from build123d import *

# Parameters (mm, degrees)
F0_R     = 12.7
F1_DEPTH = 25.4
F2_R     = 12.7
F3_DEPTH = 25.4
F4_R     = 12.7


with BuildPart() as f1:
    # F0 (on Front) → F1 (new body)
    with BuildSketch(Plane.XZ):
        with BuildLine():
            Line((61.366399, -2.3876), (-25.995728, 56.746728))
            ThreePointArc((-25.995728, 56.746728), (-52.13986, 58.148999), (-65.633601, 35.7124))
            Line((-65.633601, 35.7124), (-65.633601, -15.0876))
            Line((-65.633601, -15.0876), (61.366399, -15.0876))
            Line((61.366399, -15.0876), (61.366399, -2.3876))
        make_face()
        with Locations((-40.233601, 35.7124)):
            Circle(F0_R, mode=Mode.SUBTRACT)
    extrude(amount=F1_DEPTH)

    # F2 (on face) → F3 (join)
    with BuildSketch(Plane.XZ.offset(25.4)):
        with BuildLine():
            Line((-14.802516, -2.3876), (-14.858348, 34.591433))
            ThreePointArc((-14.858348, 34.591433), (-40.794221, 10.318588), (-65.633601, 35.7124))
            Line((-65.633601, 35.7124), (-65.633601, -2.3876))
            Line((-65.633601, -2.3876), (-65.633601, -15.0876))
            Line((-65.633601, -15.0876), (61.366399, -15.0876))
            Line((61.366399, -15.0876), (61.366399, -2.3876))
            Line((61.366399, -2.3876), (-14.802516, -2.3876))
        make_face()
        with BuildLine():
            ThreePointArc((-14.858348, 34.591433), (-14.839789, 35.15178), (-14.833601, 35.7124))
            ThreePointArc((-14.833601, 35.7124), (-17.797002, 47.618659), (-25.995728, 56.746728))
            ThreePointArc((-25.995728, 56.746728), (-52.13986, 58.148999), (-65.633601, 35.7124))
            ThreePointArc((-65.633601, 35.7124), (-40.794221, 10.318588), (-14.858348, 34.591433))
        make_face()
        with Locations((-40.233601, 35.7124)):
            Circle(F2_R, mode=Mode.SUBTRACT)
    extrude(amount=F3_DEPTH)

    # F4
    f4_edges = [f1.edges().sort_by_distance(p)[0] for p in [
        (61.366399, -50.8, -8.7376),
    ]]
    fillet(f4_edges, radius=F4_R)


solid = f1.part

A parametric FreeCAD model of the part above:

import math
import FreeCAD as App
import Part
import Sketcher

V = App.Vector
Q = App.Units.Quantity


def edges_at(feature, points):
    """Names of the edges that pass closest to the given points."""
    edges = feature.Shape.Edges
    near = lambda p: min(range(len(edges)), key=lambda i: edges[i].distToShape(Part.Vertex(*p))[0])
    return sorted({f"Edge{near(p) + 1}" for p in points})

doc = App.newDocument("Part")
body = doc.addObject("PartDesign::Body", "Body")

sketch1 = doc.addObject("Sketcher::SketchObject", "Sketch")
body.addObject(sketch1)
sketch1.AttachmentSupport = (doc.XZ_Plane, [""])
sketch1.MapMode = "FlatFace"
sketch1.addGeometry([
    Part.LineSegment(V(61, -2, 0), V(-26, 57, 0)),
    Part.ArcOfCircle(Part.Circle(V(-40, 36, 0), V(0, 0, 1), 25), math.radians(56), math.radians(180)),
    Part.LineSegment(V(-66, 36, 0), V(-66, -15, 0)),
    Part.LineSegment(V(-66, -15, 0), V(61, -15, 0)),
    Part.LineSegment(V(61, -15, 0), V(61, -2, 0)),
    Part.Circle(V(-40, 36, 0), V(0, 0, 1), 13),
], False)
sketch1.addConstraint([
    Sketcher.Constraint("Tangent", 0, 2, 1, 1),
    Sketcher.Constraint("Tangent", 1, 2, 2, 1),
    Sketcher.Constraint("Coincident", 2, 2, 3, 1),
    Sketcher.Constraint("Coincident", 3, 2, 4, 1),
    Sketcher.Constraint("Coincident", 4, 2, 0, 1),
    Sketcher.Constraint("Vertical", 2),
    Sketcher.Constraint("Horizontal", 3),
    Sketcher.Constraint("Vertical", 4),
    Sketcher.Constraint("Coincident", 5, 3, 1, 3),
    Sketcher.Constraint("Diameter", 5, Q("1 in")),
    Sketcher.Constraint("Radius", 1, Q("1 in")),
    Sketcher.Constraint("DistanceX", 3, 1, 3, 2, Q("5 in")),
    Sketcher.Constraint("DistanceY", 2, 2, 2, 1, Q("2 in")),
    Sketcher.Constraint("DistanceY", 4, 1, 4, 2, Q("0.5 in")),
    Sketcher.Constraint("DistanceX", 1, 3, -1, 1, Q("1.584 in")),
    Sketcher.Constraint("DistanceY", -1, 1, 1, 3, Q("1.406 in")),
])
pad1 = doc.addObject("PartDesign::Pad", "Pad")
body.addObject(pad1)
pad1.Profile = sketch1
pad1.Length = Q("1 in")

sketch2 = doc.addObject("Sketcher::SketchObject", "Sketch001")
body.addObject(sketch2)
sketch2.AttachmentSupport = (doc.XZ_Plane, [""])
sketch2.MapMode = "FlatFace"
sketch2.AttachmentOffset = App.Placement(V(0, 0, 1 * 25.4), App.Rotation())
sketch2.addGeometry([
    Part.LineSegment(V(-14.802516, -2.3876, 0), V(-14.858348, 34.591433, 0)),
    Part.ArcOfCircle(Part.Circle(V(-40.236287, 35.712445, 0), V(0, 0, 1), 25.402686), math.radians(-2.529265), math.radians(-0.000102)),
    Part.ArcOfCircle(Part.Circle(V(-40.233603, 35.712399, 0), V(0, 0, 1), 25.400002), math.radians(0.000003), math.radians(55.90642)),
    Part.ArcOfCircle(Part.Circle(V(-40.233601, 35.712399, 0), V(0, 0, 1), 25.4), math.radians(55.906422), math.radians(179.999999)),
    Part.LineSegment(V(-65.633601, 35.7124, 0), V(-65.633601, -15.0876, 0)),
    Part.LineSegment(V(-65.633601, -15.0876, 0), V(61.366399, -15.0876, 0)),
    Part.LineSegment(V(61.366399, -15.0876, 0), V(61.366399, -2.3876, 0)),
    Part.LineSegment(V(61.366399, -2.3876, 0), V(-14.802516, -2.3876, 0)),
    Part.Circle(V(-40.233601, 35.7124, 0), V(0, 0, 1), 12.7),
], False)
sketch2.addConstraint([
    Sketcher.Constraint("Coincident", 0, 2, 1, 1),
    Sketcher.Constraint("Coincident", 1, 2, 2, 1),
    Sketcher.Constraint("Coincident", 2, 2, 3, 1),
    Sketcher.Constraint("Coincident", 3, 2, 4, 1),
    Sketcher.Constraint("Coincident", 4, 2, 5, 1),
    Sketcher.Constraint("Coincident", 5, 2, 6, 1),
    Sketcher.Constraint("Coincident", 6, 2, 7, 1),
    Sketcher.Constraint("Coincident", 7, 2, 0, 1),
    Sketcher.Constraint("Vertical", 4),
    Sketcher.Constraint("Horizontal", 5),
    Sketcher.Constraint("Vertical", 6),
    Sketcher.Constraint("Horizontal", 7),
    Sketcher.Constraint("Coincident", 3, 3, 2, 3),
    Sketcher.Constraint("Coincident", 8, 3, 2, 3),
    Sketcher.Constraint("Diameter", 8, Q("1 in")),
    Sketcher.Constraint("Radius", 2, Q("1.0000001 in")),
    Sketcher.Constraint("DistanceX", 5, 1, 5, 2, Q("5 in")),
    Sketcher.Constraint("DistanceY", 4, 2, 4, 1, Q("2 in")),
    Sketcher.Constraint("DistanceY", 6, 1, 6, 2, Q("0.5 in")),
    Sketcher.Constraint("DistanceY", 4, 2, 2, 3, Q("1.9999999 in")),
    Sketcher.Constraint("DistanceY", 5, 2, 1, 2, Q("2 in")),
    Sketcher.Constraint("DistanceX", 2, 3, -1, 1, Q("1.5840001 in")),
    Sketcher.Constraint("DistanceY", -1, 1, 2, 3, Q("1.4059999 in")),
    Sketcher.Constraint("Radius", 1, 25.402686),
    Sketcher.Constraint("DistanceX", 7, 2, 7, 1, 76.168915),
    Sketcher.Constraint("DistanceX", 2, 2, -1, 1, 25.995728),
    Sketcher.Constraint("DistanceX", 1, 3, 0, 2, 25.377939),
    Sketcher.Constraint("Distance", 0, 36.979075),
])
pad2 = doc.addObject("PartDesign::Pad", "Pad001")
body.addObject(pad2)
pad2.Profile = sketch2
pad2.Length = Q("1 in")
doc.recompute()

fillet = doc.addObject("PartDesign::Fillet", "Fillet")
body.addObject(fillet)
fillet.Base = (pad2, edges_at(pad2, [(61.366, -50.8, -8.738)]))
fillet.Radius = Q("0.5 in")

doc.recompute()
